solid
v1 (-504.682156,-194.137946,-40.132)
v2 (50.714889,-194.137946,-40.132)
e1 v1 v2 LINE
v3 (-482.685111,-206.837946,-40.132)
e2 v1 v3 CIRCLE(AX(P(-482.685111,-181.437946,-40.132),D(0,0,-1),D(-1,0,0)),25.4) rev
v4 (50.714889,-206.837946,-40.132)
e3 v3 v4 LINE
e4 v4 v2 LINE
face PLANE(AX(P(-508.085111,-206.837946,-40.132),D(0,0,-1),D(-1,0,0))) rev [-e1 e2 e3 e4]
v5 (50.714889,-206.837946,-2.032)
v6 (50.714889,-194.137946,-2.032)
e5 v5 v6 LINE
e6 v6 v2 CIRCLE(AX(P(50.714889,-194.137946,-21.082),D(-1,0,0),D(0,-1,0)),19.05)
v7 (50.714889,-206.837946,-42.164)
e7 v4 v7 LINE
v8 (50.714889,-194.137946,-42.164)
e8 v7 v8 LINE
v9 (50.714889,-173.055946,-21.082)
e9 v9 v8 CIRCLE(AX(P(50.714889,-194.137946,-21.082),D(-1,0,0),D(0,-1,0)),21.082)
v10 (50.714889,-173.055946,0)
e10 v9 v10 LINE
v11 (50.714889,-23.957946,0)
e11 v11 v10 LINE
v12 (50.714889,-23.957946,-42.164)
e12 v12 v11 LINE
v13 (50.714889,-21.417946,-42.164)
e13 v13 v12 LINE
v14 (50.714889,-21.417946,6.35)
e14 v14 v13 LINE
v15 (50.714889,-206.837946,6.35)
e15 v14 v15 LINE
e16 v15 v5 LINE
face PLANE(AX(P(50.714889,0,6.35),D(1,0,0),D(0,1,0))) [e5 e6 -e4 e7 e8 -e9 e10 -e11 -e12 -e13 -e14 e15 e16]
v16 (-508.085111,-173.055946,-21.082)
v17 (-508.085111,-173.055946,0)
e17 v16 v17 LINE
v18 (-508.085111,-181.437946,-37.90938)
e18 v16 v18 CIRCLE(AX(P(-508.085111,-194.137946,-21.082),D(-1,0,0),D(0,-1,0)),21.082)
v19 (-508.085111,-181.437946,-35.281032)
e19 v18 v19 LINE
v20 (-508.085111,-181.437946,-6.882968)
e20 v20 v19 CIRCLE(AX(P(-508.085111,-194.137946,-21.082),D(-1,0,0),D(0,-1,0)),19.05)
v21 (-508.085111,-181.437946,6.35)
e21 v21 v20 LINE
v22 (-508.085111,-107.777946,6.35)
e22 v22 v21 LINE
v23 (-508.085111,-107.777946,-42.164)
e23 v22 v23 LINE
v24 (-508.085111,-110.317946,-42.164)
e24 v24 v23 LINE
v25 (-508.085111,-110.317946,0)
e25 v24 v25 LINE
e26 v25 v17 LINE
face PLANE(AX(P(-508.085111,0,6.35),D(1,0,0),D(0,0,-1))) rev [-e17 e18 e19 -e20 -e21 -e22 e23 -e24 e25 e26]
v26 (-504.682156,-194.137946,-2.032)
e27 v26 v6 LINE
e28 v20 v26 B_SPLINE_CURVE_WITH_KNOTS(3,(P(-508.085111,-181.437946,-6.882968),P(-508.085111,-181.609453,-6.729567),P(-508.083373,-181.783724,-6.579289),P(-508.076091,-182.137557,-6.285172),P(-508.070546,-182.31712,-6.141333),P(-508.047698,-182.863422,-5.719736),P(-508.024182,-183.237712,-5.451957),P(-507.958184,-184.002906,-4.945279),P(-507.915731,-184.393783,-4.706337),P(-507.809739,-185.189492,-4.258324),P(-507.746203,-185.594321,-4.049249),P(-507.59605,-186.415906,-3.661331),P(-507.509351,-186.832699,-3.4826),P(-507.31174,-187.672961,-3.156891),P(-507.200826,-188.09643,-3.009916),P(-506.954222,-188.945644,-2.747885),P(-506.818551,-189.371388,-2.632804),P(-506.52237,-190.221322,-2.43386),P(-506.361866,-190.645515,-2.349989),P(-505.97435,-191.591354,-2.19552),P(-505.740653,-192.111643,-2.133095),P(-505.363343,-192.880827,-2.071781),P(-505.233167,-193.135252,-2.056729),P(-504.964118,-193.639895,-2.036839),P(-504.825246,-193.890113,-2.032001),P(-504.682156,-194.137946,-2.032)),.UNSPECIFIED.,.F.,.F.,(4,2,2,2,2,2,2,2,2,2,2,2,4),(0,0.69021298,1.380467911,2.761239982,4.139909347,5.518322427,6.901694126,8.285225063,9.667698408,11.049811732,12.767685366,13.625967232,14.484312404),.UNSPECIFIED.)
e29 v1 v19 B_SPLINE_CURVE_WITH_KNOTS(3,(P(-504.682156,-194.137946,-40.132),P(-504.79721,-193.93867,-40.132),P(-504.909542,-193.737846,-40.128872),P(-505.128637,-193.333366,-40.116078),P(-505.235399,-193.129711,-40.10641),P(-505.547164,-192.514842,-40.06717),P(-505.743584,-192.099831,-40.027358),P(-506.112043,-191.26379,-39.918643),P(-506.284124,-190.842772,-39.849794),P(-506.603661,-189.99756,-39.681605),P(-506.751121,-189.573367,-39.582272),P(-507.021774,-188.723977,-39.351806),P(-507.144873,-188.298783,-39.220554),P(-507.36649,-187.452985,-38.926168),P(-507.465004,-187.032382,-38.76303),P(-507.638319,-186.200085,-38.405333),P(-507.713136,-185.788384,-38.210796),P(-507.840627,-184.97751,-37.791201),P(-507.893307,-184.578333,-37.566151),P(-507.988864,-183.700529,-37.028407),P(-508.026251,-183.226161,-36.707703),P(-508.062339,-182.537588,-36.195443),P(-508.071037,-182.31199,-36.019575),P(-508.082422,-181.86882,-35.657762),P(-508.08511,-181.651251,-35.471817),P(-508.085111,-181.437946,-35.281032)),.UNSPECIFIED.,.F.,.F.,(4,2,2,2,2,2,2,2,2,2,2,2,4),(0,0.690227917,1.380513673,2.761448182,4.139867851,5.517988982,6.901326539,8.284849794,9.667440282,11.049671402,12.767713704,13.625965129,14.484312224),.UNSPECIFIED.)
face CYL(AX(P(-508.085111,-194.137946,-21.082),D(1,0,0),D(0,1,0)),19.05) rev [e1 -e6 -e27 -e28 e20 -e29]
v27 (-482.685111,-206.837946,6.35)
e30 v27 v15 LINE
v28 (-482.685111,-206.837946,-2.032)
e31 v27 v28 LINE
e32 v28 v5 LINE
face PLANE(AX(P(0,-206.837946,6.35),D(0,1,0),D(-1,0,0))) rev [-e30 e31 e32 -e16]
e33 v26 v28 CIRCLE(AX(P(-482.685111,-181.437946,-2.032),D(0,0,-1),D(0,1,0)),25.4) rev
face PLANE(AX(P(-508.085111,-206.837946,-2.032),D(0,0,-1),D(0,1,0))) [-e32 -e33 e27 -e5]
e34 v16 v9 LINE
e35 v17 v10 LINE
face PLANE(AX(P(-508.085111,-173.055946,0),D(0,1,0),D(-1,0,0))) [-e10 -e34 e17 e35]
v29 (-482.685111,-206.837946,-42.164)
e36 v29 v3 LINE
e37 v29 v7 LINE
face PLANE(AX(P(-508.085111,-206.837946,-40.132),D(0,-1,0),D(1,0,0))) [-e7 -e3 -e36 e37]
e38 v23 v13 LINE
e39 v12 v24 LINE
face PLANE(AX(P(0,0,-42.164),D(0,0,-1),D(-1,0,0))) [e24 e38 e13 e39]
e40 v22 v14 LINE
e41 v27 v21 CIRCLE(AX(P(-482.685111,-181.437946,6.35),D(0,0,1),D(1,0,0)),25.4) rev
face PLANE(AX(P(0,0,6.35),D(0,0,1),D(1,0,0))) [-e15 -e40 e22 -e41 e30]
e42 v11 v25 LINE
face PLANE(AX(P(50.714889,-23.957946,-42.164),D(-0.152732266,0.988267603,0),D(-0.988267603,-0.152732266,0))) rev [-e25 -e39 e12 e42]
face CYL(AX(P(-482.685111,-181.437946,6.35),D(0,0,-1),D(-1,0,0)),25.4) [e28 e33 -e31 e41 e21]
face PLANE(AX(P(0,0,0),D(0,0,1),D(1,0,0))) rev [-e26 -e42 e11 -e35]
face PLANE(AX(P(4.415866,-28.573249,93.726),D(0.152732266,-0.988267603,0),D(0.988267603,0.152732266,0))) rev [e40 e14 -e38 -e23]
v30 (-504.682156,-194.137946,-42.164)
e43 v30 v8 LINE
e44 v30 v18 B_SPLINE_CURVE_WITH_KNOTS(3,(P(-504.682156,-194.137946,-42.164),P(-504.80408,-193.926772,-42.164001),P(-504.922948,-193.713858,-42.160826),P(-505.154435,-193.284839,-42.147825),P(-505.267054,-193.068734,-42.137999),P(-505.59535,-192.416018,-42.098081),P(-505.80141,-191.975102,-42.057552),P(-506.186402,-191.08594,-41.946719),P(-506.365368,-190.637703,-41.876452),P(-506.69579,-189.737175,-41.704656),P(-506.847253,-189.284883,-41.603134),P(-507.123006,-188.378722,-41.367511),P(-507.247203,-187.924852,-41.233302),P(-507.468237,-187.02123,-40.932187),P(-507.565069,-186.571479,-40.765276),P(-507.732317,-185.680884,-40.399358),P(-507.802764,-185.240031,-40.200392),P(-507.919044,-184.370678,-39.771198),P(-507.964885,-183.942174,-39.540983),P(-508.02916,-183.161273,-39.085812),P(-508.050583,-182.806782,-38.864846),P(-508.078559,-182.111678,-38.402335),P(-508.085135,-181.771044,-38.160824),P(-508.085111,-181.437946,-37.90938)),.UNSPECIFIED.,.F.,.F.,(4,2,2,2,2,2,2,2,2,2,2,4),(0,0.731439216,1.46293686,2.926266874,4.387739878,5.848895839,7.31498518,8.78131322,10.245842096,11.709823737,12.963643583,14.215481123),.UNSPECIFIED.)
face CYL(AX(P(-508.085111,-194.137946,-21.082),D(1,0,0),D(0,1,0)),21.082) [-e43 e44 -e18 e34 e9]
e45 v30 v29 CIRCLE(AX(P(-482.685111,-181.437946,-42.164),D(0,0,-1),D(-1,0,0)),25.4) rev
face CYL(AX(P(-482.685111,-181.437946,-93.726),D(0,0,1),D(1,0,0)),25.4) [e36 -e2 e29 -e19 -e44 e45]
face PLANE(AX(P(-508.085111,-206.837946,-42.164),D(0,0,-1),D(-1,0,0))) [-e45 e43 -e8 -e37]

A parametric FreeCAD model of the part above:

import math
import FreeCAD as App
import Part
import Sketcher
Q = App.Units.Quantity


def add_polygon(sketch, points):
    """Adds a closed chain of lines whose ends are joined by coincident constraints."""
    first, n = sketch.GeometryCount, len(points)
    for a, b in zip(points, points[1:] + points[:1]):
        sketch.addGeometry(Part.LineSegment(App.Vector(*a, 0), App.Vector(*b, 0)), False)
    for i in range(n):
        sketch.addConstraint(Sketcher.Constraint("Coincident", first + i, 2, first + (i + 1) % n, 1))

doc = App.newDocument("Part")
body = doc.addObject("PartDesign::Body", "Body")

# Sketch on XY plane
sketch1 = body.newObject("Sketcher::SketchObject", "Sketch")
sketch1.AttachmentSupport = (doc.getObject("XY_Plane"), [""])
sketch1.MapMode = "FlatFace"
sketch1.addGeometry(Part.LineSegment(App.Vector(-508.085111, -46.817946, 0), App.Vector(-508.085111, -181.437946, 0)), False)
sketch1.addGeometry(Part.ArcOfCircle(Part.Circle(App.Vector(-482.685111, -181.437946, 0), App.Vector(0, 0, 1), 25.4), math.radians(180), math.radians(270)), False)
sketch1.addGeometry(Part.LineSegment(App.Vector(-482.685111, -206.837946, 0), App.Vector(50.714889, -206.837946, 0)), False)
sketch1.addGeometry(Part.LineSegment(App.Vector(50.714889, -206.837946, 0), App.Vector(50.714889, -21.417946, 0)), False)
sketch1.addGeometry(Part.LineSegment(App.Vector(50.714889, -21.417946, 0), App.Vector(-482.685111, -21.417946, 0)), False)
sketch1.addGeometry(Part.ArcOfCircle(Part.Circle(App.Vector(-482.685111, -46.817946, 0), App.Vector(0, 0, 1), 25.4), math.radians(90), math.radians(180)), False)
sketch1.addConstraint(Sketcher.Constraint("Tangent", 0, 2, 1, 1))
sketch1.addConstraint(Sketcher.Constraint("Tangent", 1, 2, 2, 1))
sketch1.addConstraint(Sketcher.Constraint("Coincident", 2, 2, 3, 1))
sketch1.addConstraint(Sketcher.Constraint("Coincident", 3, 2, 4, 1))
sketch1.addConstraint(Sketcher.Constraint("Tangent", 4, 2, 5, 1))
sketch1.addConstraint(Sketcher.Constraint("Tangent", 5, 2, 0, 1))
sketch1.addConstraint(Sketcher.Constraint("Vertical", 0))
sketch1.addConstraint(Sketcher.Constraint("Horizontal", 2))
sketch1.addConstraint(Sketcher.Constraint("Vertical", 3))
sketch1.addConstraint(Sketcher.Constraint("Horizontal", 4))
sketch1.addConstraint(Sketcher.Constraint("Equal", 1, 5))
sketch1.addConstraint(Sketcher.Constraint("Radius", 1, Q("1 in")))
sketch1.addConstraint(Sketcher.Constraint("DistanceX", 2, 1, 2, 2, Q("21 in")))
sketch1.addConstraint(Sketcher.Constraint("DistanceY", 0, 2, 0, 1, Q("5.3 in")))
sketch1.addConstraint(Sketcher.Constraint("DistanceX", 1, 3, -1, 1, 482.685111))
sketch1.addConstraint(Sketcher.Constraint("DistanceY", 1, 3, -1, 1, 181.437946))
pad1 = body.newObject("PartDesign::Pad", "Pad")
pad1.Profile = sketch1
pad1.Length = Q("0.25 in")

# Sketch on YZ plane
sketch2 = body.newObject("Sketcher::SketchObject", "Sketch001")
sketch2.AttachmentSupport = (doc.getObject("YZ_Plane"), [""])
sketch2.MapMode = "FlatFace"
sketch2.AttachmentOffset = App.Placement(App.Vector(0, 0, 50.714889), App.Rotation())
sketch2.addGeometry(Part.LineSegment(App.Vector(-173.055946, 0, 0), App.Vector(-206.837946, 0, 0)), False)
sketch2.addGeometry(Part.LineSegment(App.Vector(-206.837946, 0, 0), App.Vector(-206.837946, -2.032, 0)), False)
sketch2.addGeometry(Part.LineSegment(App.Vector(-206.837946, -2.032, 0), App.Vector(-194.137946, -2.032, 0)), False)
sketch2.addGeometry(Part.ArcOfCircle(Part.Circle(App.Vector(-194.137946, -21.082, 0), App.Vector(0, 0, 1), 19.05), math.radians(-90), math.radians(90)), False)
sketch2.addGeometry(Part.LineSegment(App.Vector(-194.137946, -40.132, 0), App.Vector(-206.837946, -40.132, 0)), False)
sketch2.addGeometry(Part.LineSegment(App.Vector(-206.837946, -40.132, 0), App.Vector(-206.837946, -42.164, 0)), False)
sketch2.addGeometry(Part.LineSegment(App.Vector(-206.837946, -42.164, 0), App.Vector(-194.137946, -42.164, 0)), False)
sketch2.addGeometry(Part.ArcOfCircle(Part.Circle(App.Vector(-194.137946, -21.082, 0), App.Vector(0, 0, 1), 21.082), math.radians(-90), math.radians(0)), False)
sketch2.addGeometry(Part.LineSegment(App.Vector(-173.055946, -21.082, 0), App.Vector(-173.055946, 0, 0)), False)
sketch2.addConstraint(Sketcher.Constraint("Coincident", 0, 2, 1, 1))
sketch2.addConstraint(Sketcher.Constraint("Coincident", 1, 2, 2, 1))
sketch2.addConstraint(Sketcher.Constraint("Tangent", 2, 2, 3, 2))
sketch2.addConstraint(Sketcher.Constraint("Tangent", 3, 1, 4, 1))
sketch2.addConstraint(Sketcher.Constraint("Coincident", 4, 2, 5, 1))
sketch2.addConstraint(Sketcher.Constraint("Coincident", 5, 2, 6, 1))
sketch2.addConstraint(Sketcher.Constraint("Tangent", 6, 2, 7, 1))
sketch2.addConstraint(Sketcher.Constraint("Tangent", 7, 2, 8, 1))
sketch2.addConstraint(Sketcher.Constraint("Coincident", 8, 2, 0, 1))
sketch2.addConstraint(Sketcher.Constraint("Horizontal", 0))
sketch2.addConstraint(Sketcher.Constraint("Vertical", 1))
sketch2.addConstraint(Sketcher.Constraint("Horizontal", 2))
sketch2.addConstraint(Sketcher.Constraint("Horizontal", 4))
sketch2.addConstraint(Sketcher.Constraint("Vertical", 5))
sketch2.addConstraint(Sketcher.Constraint("Horizontal", 6))
sketch2.addConstraint(Sketcher.Constraint("Vertical", 8))
sketch2.addConstraint(Sketcher.Constraint("Coincident", 7, 3, 3, 3))
sketch2.addConstraint(Sketcher.Constraint("PointOnObject", 0, 2, -1))
sketch2.addConstraint(Sketcher.Constraint("Vertical", 1, 2, 4, 2))
sketch2.addConstraint(Sketcher.Constraint("Equal", 1, 5))
sketch2.addConstraint(Sketcher.Constraint("Radius", 3, Q("0.75 in")))
sketch2.addConstraint(Sketcher.Constraint("Radius", 7, Q("0.83 in")))
sketch2.addConstraint(Sketcher.Constraint("DistanceX", 2, 1, 2, 2, Q("0.5 in")))
sketch2.addConstraint(Sketcher.Constraint("DistanceX", 3, 3, -1, 1, 194.137946))
pad2 = body.newObject("PartDesign::Pad", "Pad001")
pad2.Profile = sketch2
pad2.Length = Q("22 in")
pad2.Reversed = True

# Sketch on XY plane
sketch3 = body.newObject("Sketcher::SketchObject", "Sketch002")
sketch3.AttachmentSupport = (doc.getObject("XY_Plane"), [""])
sketch3.MapMode = "FlatFace"
sketch3.AttachmentOffset = App.Placement(App.Vector(0, 0, -3.69 * 25.4), App.Rotation())
sketch3.addGeometry(Part.LineSegment(App.Vector(-508.085111, -206.837946, 0), App.Vector(-482.685111, -206.837946, 0)), False)
sketch3.addGeometry(Part.ArcOfCircle(Part.Circle(App.Vector(-482.685111, -181.437946, 0), App.Vector(0, 0, 1), 25.4), math.radians(180), math.radians(270)), False)
sketch3.addGeometry(Part.LineSegment(App.Vector(-508.085111, -181.437946, 0), App.Vector(-508.085111, -206.837946, 0)), False)
sketch3.addConstraint(Sketcher.Constraint("Tangent", 0, 2, 1, 2))
sketch3.addConstraint(Sketcher.Constraint("Tangent", 1, 1, 2, 1))
sketch3.addConstraint(Sketcher.Constraint("Coincident", 2, 2, 0, 1))
sketch3.addConstraint(Sketcher.Constraint("Horizontal", 0))
sketch3.addConstraint(Sketcher.Constraint("Vertical", 2))
sketch3.addConstraint(Sketcher.Constraint("Radius", 1, Q("1 in")))
sketch3.addConstraint(Sketcher.Constraint("DistanceX", 1, 3, -1, 1, 482.685111))
sketch3.addConstraint(Sketcher.Constraint("DistanceY", 1, 3, -1, 1, 181.437946))
pocket1 = body.newObject("PartDesign::Pocket", "Pocket")
pocket1.Profile = sketch3
pocket1.Length = Q("3.69 in")
pocket1.Reversed = True

# Sketch on XY plane
sketch4 = body.newObject("Sketcher::SketchObject", "Sketch003")
sketch4.AttachmentSupport = (doc.getObject("XY_Plane"), [""])
sketch4.MapMode = "FlatFace"
sketch4.addGeometry(Part.LineSegment(App.Vector(-482.685111, -21.417946, 0), App.Vector(50.714889, -21.417946, 0)), False)
sketch4.addGeometry(Part.LineSegment(App.Vector(50.714889, -21.417946, 0), App.Vector(-508.085111, -107.777946, 0)), False)
sketch4.addGeometry(Part.LineSegment(App.Vector(-508.085111, -107.777946, 0), App.Vector(-508.085111, -46.817946, 0)), False)
sketch4.addGeometry(Part.ArcOfCircle(Part.Circle(App.Vector(-482.685111, -46.817946, 0), App.Vector(0, 0, 1), 25.4), math.radians(90), math.radians(180)), False)
sketch4.addConstraint(Sketcher.Constraint("Coincident", 0, 2, 1, 1))
sketch4.addConstraint(Sketcher.Constraint("Coincident", 1, 2, 2, 1))
sketch4.addConstraint(Sketcher.Constraint("Tangent", 2, 2, 3, 2))
sketch4.addConstraint(Sketcher.Constraint("Tangent", 3, 1, 0, 1))
sketch4.addConstraint(Sketcher.Constraint("Horizontal", 0))
sketch4.addConstraint(Sketcher.Constraint("Vertical", 2))
sketch4.addConstraint(Sketcher.Constraint("Radius", 3, Q("1 in")))
sketch4.addConstraint(Sketcher.Constraint("DistanceX", 0, 1, 0, 2, Q("21 in")))
sketch4.addConstraint(Sketcher.Constraint("DistanceY", 2, 1, 2, 2, Q("2.4 in")))
sketch4.addConstraint(Sketcher.Constraint("DistanceX", 3, 3, -1, 1, 482.685111))
sketch4.addConstraint(Sketcher.Constraint("DistanceY", 3, 3, -1, 1, 46.817946))
pocket2 = body.newObject("PartDesign::Pocket", "Pocket001")
pocket2.Profile = sketch4
pocket2.Length = Q("3.69 in")
pocket2.Reversed = True

# Sketch on XY plane
sketch5 = body.newObject("Sketcher::SketchObject", "Sketch004")
sketch5.AttachmentSupport = (doc.getObject("XY_Plane"), [""])
sketch5.MapMode = "FlatFace"
add_polygon(sketch5, [(-508.085111, -107.777946), (50.714889, -21.417946), (50.714889, -23.957946), (-508.085111, -110.317946)])  # lines 0-3
sketch5.addConstraint(Sketcher.Constraint("Vertical", 1))
sketch5.addConstraint(Sketcher.Constraint("Vertical", 3))
sketch5.addConstraint(Sketcher.Constraint("Parallel", 0, 2))
sketch5.addConstraint(Sketcher.Constraint("DistanceY", 1, 2, 1, 1, Q("0.1 in")))
sketch5.addConstraint(Sketcher.Constraint("DistanceX", 2, 2, 1, 2, Q("22 in")))
sketch5.addConstraint(Sketcher.Constraint("DistanceY", 2, 2, 1, 2, Q("3.4 in")))
sketch5.addConstraint(Sketcher.Constraint("DistanceX", -1, 1, 0, 2, 50.714889))
sketch5.addConstraint(Sketcher.Constraint("DistanceY", 0, 2, -1, 1, 21.417946))
pad3 = body.newObject("PartDesign::Pad", "Pad002")
pad3.Profile = sketch5
pad3.Length = Q("1.66 in")
pad3.Reversed = True

doc.recompute()
